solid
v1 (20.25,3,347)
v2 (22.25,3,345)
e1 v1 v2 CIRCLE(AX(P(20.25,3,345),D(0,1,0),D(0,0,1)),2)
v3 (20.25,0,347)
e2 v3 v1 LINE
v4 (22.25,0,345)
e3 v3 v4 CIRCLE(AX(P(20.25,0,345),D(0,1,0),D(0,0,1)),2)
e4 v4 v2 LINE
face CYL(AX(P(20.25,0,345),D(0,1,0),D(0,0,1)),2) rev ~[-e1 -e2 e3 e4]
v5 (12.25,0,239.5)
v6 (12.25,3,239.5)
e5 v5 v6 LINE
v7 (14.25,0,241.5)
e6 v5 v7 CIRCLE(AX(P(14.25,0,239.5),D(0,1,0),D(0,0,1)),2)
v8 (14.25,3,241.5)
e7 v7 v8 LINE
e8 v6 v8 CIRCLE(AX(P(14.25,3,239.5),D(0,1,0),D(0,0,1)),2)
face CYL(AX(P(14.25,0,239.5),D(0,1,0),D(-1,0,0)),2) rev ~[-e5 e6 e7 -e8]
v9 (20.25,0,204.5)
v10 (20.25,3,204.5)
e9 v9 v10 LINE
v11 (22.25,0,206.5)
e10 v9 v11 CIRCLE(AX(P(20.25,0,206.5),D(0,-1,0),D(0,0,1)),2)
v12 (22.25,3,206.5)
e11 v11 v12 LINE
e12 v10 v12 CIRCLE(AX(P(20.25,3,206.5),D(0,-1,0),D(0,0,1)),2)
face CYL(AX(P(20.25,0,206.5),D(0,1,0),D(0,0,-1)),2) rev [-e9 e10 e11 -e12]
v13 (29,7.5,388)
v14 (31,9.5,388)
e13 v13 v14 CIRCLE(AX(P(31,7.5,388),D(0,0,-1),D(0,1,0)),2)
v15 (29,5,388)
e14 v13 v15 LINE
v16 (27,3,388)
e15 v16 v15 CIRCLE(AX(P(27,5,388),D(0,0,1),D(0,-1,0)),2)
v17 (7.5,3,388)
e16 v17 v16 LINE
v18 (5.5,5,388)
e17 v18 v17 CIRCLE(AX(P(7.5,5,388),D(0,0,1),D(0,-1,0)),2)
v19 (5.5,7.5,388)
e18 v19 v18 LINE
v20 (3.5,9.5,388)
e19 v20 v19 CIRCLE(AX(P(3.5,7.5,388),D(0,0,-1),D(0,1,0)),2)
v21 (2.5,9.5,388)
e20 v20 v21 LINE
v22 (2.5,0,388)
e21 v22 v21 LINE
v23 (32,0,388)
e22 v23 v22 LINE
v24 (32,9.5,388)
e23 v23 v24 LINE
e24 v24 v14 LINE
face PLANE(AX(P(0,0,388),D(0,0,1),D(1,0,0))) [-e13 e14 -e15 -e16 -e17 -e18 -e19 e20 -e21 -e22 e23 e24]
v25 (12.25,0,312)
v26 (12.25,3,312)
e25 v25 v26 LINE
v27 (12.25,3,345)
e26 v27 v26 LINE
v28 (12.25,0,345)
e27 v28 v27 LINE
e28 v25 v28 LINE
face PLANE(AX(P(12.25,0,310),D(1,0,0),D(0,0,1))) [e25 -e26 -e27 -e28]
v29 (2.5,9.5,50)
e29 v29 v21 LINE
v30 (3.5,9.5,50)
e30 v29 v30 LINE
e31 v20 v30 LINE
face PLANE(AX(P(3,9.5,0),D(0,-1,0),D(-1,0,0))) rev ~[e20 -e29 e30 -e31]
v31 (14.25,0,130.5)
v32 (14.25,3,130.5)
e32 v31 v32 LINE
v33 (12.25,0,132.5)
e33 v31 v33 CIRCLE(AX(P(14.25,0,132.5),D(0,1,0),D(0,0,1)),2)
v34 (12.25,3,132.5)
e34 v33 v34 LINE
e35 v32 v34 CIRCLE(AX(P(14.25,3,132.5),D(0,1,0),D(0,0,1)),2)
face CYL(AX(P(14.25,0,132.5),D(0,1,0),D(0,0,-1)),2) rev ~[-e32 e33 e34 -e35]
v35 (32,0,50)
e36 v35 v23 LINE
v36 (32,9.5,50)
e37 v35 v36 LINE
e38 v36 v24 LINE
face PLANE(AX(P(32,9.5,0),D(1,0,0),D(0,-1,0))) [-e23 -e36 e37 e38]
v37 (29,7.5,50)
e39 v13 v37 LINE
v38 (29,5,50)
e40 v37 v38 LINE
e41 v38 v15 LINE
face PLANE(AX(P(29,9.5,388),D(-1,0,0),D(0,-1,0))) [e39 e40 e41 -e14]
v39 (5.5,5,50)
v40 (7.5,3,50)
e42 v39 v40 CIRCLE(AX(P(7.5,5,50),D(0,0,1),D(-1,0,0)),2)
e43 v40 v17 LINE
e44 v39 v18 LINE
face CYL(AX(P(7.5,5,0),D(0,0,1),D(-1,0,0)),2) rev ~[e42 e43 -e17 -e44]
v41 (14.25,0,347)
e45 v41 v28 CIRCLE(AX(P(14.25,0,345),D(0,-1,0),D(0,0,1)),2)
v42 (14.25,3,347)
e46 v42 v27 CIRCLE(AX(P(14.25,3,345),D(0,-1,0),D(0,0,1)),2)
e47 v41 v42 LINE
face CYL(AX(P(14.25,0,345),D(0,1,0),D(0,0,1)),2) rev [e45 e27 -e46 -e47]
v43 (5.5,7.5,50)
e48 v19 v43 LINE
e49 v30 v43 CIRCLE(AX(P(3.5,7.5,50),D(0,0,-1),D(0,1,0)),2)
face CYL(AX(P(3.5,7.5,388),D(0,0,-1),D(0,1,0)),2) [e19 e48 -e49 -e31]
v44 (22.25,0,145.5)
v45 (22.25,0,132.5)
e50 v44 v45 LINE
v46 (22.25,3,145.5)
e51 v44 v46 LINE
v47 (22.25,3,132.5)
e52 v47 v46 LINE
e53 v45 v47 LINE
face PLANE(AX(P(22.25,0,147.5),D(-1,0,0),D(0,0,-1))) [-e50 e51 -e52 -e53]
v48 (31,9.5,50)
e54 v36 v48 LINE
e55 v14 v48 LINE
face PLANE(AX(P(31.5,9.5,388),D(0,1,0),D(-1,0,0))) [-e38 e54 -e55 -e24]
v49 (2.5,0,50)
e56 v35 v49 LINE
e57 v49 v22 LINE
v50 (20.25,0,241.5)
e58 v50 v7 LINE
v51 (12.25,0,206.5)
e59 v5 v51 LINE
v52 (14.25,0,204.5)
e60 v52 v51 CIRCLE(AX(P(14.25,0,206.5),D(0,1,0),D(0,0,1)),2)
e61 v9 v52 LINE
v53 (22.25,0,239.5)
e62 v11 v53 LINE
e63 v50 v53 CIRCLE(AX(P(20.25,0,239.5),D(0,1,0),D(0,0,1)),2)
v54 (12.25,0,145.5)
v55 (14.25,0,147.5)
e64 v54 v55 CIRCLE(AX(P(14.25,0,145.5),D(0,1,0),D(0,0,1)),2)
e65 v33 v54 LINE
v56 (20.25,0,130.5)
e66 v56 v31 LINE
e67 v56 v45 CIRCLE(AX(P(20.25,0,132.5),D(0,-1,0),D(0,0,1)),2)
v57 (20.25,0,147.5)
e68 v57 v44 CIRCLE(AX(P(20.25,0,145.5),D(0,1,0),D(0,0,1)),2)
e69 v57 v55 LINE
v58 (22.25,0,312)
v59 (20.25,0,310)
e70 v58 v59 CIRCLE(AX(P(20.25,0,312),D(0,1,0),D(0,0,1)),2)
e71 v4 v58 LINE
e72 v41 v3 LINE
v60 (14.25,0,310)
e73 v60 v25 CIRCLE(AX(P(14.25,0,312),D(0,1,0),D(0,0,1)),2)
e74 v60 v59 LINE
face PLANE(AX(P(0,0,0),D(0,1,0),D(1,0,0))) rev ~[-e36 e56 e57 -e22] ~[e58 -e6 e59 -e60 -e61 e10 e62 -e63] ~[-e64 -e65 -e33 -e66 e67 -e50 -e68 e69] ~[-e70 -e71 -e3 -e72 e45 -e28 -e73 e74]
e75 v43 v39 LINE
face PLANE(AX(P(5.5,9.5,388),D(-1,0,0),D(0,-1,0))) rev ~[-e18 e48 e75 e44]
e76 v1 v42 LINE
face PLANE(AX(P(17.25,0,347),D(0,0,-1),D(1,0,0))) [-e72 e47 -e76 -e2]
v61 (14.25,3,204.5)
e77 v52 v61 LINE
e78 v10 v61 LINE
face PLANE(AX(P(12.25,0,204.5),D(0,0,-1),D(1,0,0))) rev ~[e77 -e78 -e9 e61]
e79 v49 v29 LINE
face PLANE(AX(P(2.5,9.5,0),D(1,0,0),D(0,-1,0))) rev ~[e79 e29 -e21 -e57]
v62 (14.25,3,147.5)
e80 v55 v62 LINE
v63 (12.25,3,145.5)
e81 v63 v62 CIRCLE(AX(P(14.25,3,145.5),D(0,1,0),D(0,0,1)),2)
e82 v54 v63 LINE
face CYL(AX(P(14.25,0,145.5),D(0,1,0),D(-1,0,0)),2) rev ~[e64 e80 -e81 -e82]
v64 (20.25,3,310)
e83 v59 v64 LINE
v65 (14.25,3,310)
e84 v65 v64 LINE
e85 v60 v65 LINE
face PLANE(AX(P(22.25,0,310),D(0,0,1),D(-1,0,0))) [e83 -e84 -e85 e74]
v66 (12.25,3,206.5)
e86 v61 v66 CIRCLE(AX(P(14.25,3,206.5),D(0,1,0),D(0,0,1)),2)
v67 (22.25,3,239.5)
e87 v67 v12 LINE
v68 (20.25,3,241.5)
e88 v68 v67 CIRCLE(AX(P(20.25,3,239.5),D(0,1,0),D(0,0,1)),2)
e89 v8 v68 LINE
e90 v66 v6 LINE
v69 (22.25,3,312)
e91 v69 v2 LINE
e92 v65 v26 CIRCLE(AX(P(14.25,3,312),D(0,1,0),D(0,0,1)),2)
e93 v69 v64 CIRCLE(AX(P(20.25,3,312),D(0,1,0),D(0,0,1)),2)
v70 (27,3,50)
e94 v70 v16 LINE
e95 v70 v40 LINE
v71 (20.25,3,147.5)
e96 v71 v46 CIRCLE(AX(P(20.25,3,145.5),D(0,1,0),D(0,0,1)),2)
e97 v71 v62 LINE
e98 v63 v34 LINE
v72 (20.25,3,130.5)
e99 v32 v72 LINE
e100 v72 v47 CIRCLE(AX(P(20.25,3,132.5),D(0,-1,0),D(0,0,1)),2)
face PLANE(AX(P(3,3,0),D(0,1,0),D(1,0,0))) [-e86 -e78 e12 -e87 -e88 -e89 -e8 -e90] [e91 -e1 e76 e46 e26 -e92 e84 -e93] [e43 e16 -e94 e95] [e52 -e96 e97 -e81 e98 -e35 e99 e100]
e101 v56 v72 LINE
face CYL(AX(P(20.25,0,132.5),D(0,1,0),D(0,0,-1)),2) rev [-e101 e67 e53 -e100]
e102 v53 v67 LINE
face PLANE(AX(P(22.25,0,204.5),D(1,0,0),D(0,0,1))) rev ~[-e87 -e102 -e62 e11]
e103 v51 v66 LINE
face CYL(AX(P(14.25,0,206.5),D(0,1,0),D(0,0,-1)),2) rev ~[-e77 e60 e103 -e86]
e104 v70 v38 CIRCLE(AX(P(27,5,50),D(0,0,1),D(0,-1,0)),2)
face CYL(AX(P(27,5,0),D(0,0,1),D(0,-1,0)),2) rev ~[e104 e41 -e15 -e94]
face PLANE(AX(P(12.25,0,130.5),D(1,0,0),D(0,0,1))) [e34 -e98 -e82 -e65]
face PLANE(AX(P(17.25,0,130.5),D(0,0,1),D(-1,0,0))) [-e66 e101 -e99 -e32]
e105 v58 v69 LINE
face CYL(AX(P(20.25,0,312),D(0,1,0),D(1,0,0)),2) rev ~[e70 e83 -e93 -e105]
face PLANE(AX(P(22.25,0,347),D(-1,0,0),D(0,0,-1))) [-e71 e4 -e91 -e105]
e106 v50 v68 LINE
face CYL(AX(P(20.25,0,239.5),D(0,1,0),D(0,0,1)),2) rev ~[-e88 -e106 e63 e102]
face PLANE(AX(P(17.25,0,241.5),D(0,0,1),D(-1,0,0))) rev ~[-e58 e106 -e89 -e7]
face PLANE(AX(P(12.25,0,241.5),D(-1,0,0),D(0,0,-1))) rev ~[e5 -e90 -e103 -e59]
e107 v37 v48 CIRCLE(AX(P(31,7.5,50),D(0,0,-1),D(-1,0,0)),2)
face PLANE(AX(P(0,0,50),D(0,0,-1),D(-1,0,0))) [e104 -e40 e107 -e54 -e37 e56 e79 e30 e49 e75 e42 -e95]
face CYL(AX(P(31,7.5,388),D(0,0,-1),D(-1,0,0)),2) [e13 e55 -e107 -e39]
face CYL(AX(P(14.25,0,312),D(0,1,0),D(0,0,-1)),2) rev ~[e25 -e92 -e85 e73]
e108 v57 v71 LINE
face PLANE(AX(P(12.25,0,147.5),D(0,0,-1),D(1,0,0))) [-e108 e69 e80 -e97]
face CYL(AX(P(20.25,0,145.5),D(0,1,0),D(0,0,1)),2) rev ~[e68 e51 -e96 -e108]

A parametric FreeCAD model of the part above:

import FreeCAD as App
import Part
import Sketcher
Q = App.Units.Quantity


def edges_at(feature, points):
    """Names of the edges that pass closest to the given points."""
    edges = feature.Shape.Edges
    near = lambda p: min(range(len(edges)), key=lambda i: edges[i].distToShape(Part.Vertex(*p))[0])
    return sorted({f"Edge{near(p) + 1}" for p in points})

doc = App.newDocument("Part")
body = doc.addObject("PartDesign::Body", "Body")

sketch1 = body.newObject("Sketcher::SketchObject", "Sketch")
sketch1.AttachmentSupport = (doc.getObject("XY_Plane"), [""])
sketch1.MapMode = "FlatFace"
sketch1.addGeometry([
    Part.LineSegment(App.Vector(0, 9.5, 0), App.Vector(0, 0, 0)),
    Part.LineSegment(App.Vector(0, 0, 0), App.Vector(34.5, 0, 0)),
    Part.LineSegment(App.Vector(34.5, 0, 0), App.Vector(34.5, 9.5, 0)),
    Part.LineSegment(App.Vector(34.5, 9.5, 0), App.Vector(31.5, 9.5, 0)),
    Part.LineSegment(App.Vector(31.5, 9.5, 0), App.Vector(31.5, 3, 0)),
    Part.LineSegment(App.Vector(31.5, 3, 0), App.Vector(3, 3, 0)),
    Part.LineSegment(App.Vector(3, 3, 0), App.Vector(3, 9.5, 0)),
    Part.LineSegment(App.Vector(3, 9.5, 0), App.Vector(0, 9.5, 0)),
], False)
sketch1.addConstraint([
    Sketcher.Constraint("Coincident", 0, 2, 1, 1),
    Sketcher.Constraint("Coincident", 1, 2, 2, 1),
    Sketcher.Constraint("Coincident", 2, 2, 3, 1),
    Sketcher.Constraint("Coincident", 3, 2, 4, 1),
    Sketcher.Constraint("Coincident", 4, 2, 5, 1),
    Sketcher.Constraint("Coincident", 5, 2, 6, 1),
    Sketcher.Constraint("Coincident", 6, 2, 7, 1),
    Sketcher.Constraint("Coincident", 7, 2, 0, 1),
    Sketcher.Constraint("Vertical", 0),
    Sketcher.Constraint("Horizontal", 1),
    Sketcher.Constraint("Vertical", 2),
    Sketcher.Constraint("Horizontal", 3),
    Sketcher.Constraint("Vertical", 4),
    Sketcher.Constraint("Horizontal", 5),
    Sketcher.Constraint("Vertical", 6),
    Sketcher.Constraint("Horizontal", 7),
    Sketcher.Constraint("Coincident", 0, 2, -1, 1),
    Sketcher.Constraint("Horizontal", 3, 2, 6, 2),
    Sketcher.Constraint("Equal", 3, 7),
    Sketcher.Constraint("DistanceX", 3, 2, 3, 1, Q("3 mm")),
    Sketcher.Constraint("DistanceX", 1, 1, 1, 2, Q("34.5 mm")),
    Sketcher.Constraint("DistanceY", 0, 2, 0, 1, Q("9.5 mm")),
    Sketcher.Constraint("DistanceY", -1, 1, 4, 2, Q("3 mm")),
])
pad1 = body.newObject("PartDesign::Pad", "Pad")
pad1.Profile = sketch1
pad1.Length = 388

sketch2 = body.newObject("Sketcher::SketchObject", "Sketch001")
sketch2.AttachmentSupport = (doc.getObject("XZ_Plane"), [""])
sketch2.MapMode = "FlatFace"
sketch2.addGeometry([
    Part.LineSegment(App.Vector(12, 130, 0), App.Vector(22, 130, 0)),
    Part.LineSegment(App.Vector(22, 130, 0), App.Vector(22, 148, 0)),
    Part.LineSegment(App.Vector(22, 148, 0), App.Vector(12, 148, 0)),
    Part.LineSegment(App.Vector(12, 148, 0), App.Vector(12, 130, 0)),
    Part.LineSegment(App.Vector(22, 347, 0), App.Vector(12, 347, 0)),
    Part.LineSegment(App.Vector(12, 347, 0), App.Vector(12, 310, 0)),
    Part.LineSegment(App.Vector(12, 310, 0), App.Vector(22, 310, 0)),
    Part.LineSegment(App.Vector(22, 310, 0), App.Vector(22, 347, 0)),
    Part.LineSegment(App.Vector(12, 204, 0), App.Vector(22, 204, 0)),
    Part.LineSegment(App.Vector(22, 204, 0), App.Vector(22, 242, 0)),
    Part.LineSegment(App.Vector(22, 242, 0), App.Vector(12, 242, 0)),
    Part.LineSegment(App.Vector(12, 242, 0), App.Vector(12, 204, 0)),
], False)
sketch2.addConstraint([
    Sketcher.Constraint("Coincident", 0, 2, 1, 1),
    Sketcher.Constraint("Coincident", 1, 2, 2, 1),
    Sketcher.Constraint("Coincident", 2, 2, 3, 1),
    Sketcher.Constraint("Coincident", 3, 2, 0, 1),
    Sketcher.Constraint("Coincident", 4, 2, 5, 1),
    Sketcher.Constraint("Coincident", 5, 2, 6, 1),
    Sketcher.Constraint("Coincident", 6, 2, 7, 1),
    Sketcher.Constraint("Coincident", 7, 2, 4, 1),
    Sketcher.Constraint("Coincident", 8, 2, 9, 1),
    Sketcher.Constraint("Coincident", 9, 2, 10, 1),
    Sketcher.Constraint("Coincident", 10, 2, 11, 1),
    Sketcher.Constraint("Coincident", 11, 2, 8, 1),
    Sketcher.Constraint("Horizontal", 0),
    Sketcher.Constraint("Vertical", 1),
    Sketcher.Constraint("Horizontal", 2),
    Sketcher.Constraint("Vertical", 3),
    Sketcher.Constraint("Horizontal", 4),
    Sketcher.Constraint("Vertical", 5),
    Sketcher.Constraint("Horizontal", 6),
    Sketcher.Constraint("Vertical", 7),
    Sketcher.Constraint("Horizontal", 8),
    Sketcher.Constraint("Vertical", 9),
    Sketcher.Constraint("Horizontal", 10),
    Sketcher.Constraint("Vertical", 11),
    Sketcher.Constraint("Vertical", 3, 2, 4, 2),
    Sketcher.Constraint("Vertical", 1, 2, 6, 2),
    Sketcher.Constraint("Vertical", 7, 2, 8, 2),
    Sketcher.Constraint("Vertical", 5, 2, 10, 2),
    Sketcher.Constraint("Equal", 7, 9),
    Sketcher.Constraint("DistanceX", 0, 1, 0, 2, Q("10 mm")),
    Sketcher.Constraint("DistanceY", 1, 1, 1, 2, Q("17 mm")),
    Sketcher.Constraint("DistanceY", 5, 2, 5, 1, Q("37 mm")),
    Sketcher.Constraint("DistanceY", 1, 2, 8, 2, Q("57 mm")),
    Sketcher.Constraint("DistanceY", 9, 2, 6, 2, Q("68.5 mm")),
    Sketcher.Constraint("DistanceY", -1, 1, 4, 2, Q("347 mm")),
    Sketcher.Constraint("DistanceX", -1, 1, 0, 2, Q("22.25 mm")),
])
pocket1 = body.newObject("PartDesign::Pocket", "Pocket")
pocket1.Profile = sketch2
pocket1.Length = 295
doc.recompute()

fillet = body.newObject("PartDesign::Fillet", "Fillet")
fillet.Base = (pocket1, edges_at(pocket1, [
    (12.25, 1.5, 241.5),
    (12.25, 1.5, 204.5),
    (22.25, 1.5, 204.5),
    (22.25, 1.5, 241.5),
    (22.25, 1.5, 147.5),
    (22.25, 1.5, 130.5),
    (12.25, 1.5, 147.5),
    (12.25, 1.5, 130.5),
    (12.25, 1.5, 310),
    (12.25, 1.5, 347),
    (22.25, 1.5, 347),
    (22.25, 1.5, 310),
]))
fillet.Radius = 2

sketch3 = body.newObject("Sketcher::SketchObject", "Sketch002")
sketch3.AttachmentSupport = (doc.getObject("XY_Plane"), [""])
sketch3.MapMode = "FlatFace"
sketch3.AttachmentOffset = App.Placement(App.Vector(0, 0, 388), App.Rotation())
sketch3.addGeometry([
    Part.LineSegment(App.Vector(3, 9.5, 0), App.Vector(3, 0, 0)),
    Part.LineSegment(App.Vector(3, 0, 0), App.Vector(5.5, 0, 0)),
    Part.LineSegment(App.Vector(5.5, 0, 0), App.Vector(5.5, 9.5, 0)),
    Part.LineSegment(App.Vector(5.5, 9.5, 0), App.Vector(3, 9.5, 0)),
    Part.LineSegment(App.Vector(31.5, 0, 0), App.Vector(31.5, 9.5, 0)),
    Part.LineSegment(App.Vector(31.5, 9.5, 0), App.Vector(29, 9.5, 0)),
    Part.LineSegment(App.Vector(29, 9.5, 0), App.Vector(29, 0, 0)),
    Part.LineSegment(App.Vector(29, 0, 0), App.Vector(31.5, 0, 0)),
], False)
sketch3.addConstraint([
    Sketcher.Constraint("Coincident", 0, 2, 1, 1),
    Sketcher.Constraint("Coincident", 1, 2, 2, 1),
    Sketcher.Constraint("Coincident", 2, 2, 3, 1),
    Sketcher.Constraint("Coincident", 3, 2, 0, 1),
    Sketcher.Constraint("Coincident", 4, 2, 5, 1),
    Sketcher.Constraint("Coincident", 5, 2, 6, 1),
    Sketcher.Constraint("Coincident", 6, 2, 7, 1),
    Sketcher.Constraint("Coincident", 7, 2, 4, 1),
    Sketcher.Constraint("Vertical", 0),
    Sketcher.Constraint("Horizontal", 1),
    Sketcher.Constraint("Vertical", 2),
    Sketcher.Constraint("Horizontal", 3),
    Sketcher.Constraint("Vertical", 4),
    Sketcher.Constraint("Horizontal", 5),
    Sketcher.Constraint("Vertical", 6),
    Sketcher.Constraint("Horizontal", 7),
    Sketcher.Constraint("PointOnObject", 0, 2, -1),
    Sketcher.Constraint("PointOnObject", 6, 2, -1),
    Sketcher.Constraint("Horizontal", 3, 2, 4, 2),
    Sketcher.Constraint("Equal", 3, 5),
    Sketcher.Constraint("DistanceX", 1, 1, 1, 2, Q("2.5 mm")),
    Sketcher.Constraint("DistanceY", 0, 2, 0, 1, Q("9.5 mm")),
    Sketcher.Constraint("DistanceX", -1, 1, 0, 2, Q("3 mm")),
    Sketcher.Constraint("DistanceX", -1, 1, 5, 2, Q("29 mm")),
])
pad2 = body.newObject("PartDesign::Pad", "Pad001")
pad2.Profile = sketch3
pad2.Length = 388
pad2.Reversed = True

sketch4 = body.newObject("Sketcher::SketchObject", "Sketch003")
sketch4.AttachmentSupport = (doc.getObject("XY_Plane"), [""])
sketch4.MapMode = "FlatFace"
sketch4.addGeometry([
    Part.LineSegment(App.Vector(2.5, 9.5, 0), App.Vector(2.5, 0, 0)),
    Part.LineSegment(App.Vector(2.5, 0, 0), App.Vector(0, 0, 0)),
    Part.LineSegment(App.Vector(0, 0, 0), App.Vector(0, 9.5, 0)),
    Part.LineSegment(App.Vector(0, 9.5, 0), App.Vector(2.5, 9.5, 0)),
    Part.LineSegment(App.Vector(32, 9.5, 0), App.Vector(34.5, 9.5, 0)),
    Part.LineSegment(App.Vector(34.5, 9.5, 0), App.Vector(34.5, 0, 0)),
    Part.LineSegment(App.Vector(34.5, 0, 0), App.Vector(32, 0, 0)),
    Part.LineSegment(App.Vector(32, 0, 0), App.Vector(32, 9.5, 0)),
], False)
sketch4.addConstraint([
    Sketcher.Constraint("Coincident", 0, 2, 1, 1),
    Sketcher.Constraint("Coincident", 1, 2, 2, 1),
    Sketcher.Constraint("Coincident", 2, 2, 3, 1),
    Sketcher.Constraint("Coincident", 3, 2, 0, 1),
    Sketcher.Constraint("Coincident", 4, 2, 5, 1),
    Sketcher.Constraint("Coincident", 5, 2, 6, 1),
    Sketcher.Constraint("Coincident", 6, 2, 7, 1),
    Sketcher.Constraint("Coincident", 7, 2, 4, 1),
    Sketcher.Constraint("Vertical", 0),
    Sketcher.Constraint("Horizontal", 1),
    Sketcher.Constraint("Vertical", 2),
    Sketcher.Constraint("Horizontal", 3),
    Sketcher.Constraint("Horizontal", 4),
    Sketcher.Constraint("Vertical", 5),
    Sketcher.Constraint("Horizontal", 6),
    Sketcher.Constraint("Vertical", 7),
    Sketcher.Constraint("Coincident", 1, 2, -1, 1),
    Sketcher.Constraint("PointOnObject", 5, 2, -1),
    Sketcher.Constraint("Horizontal", 3, 2, 4, 2),
    Sketcher.Constraint("Equal", 3, 4),
    Sketcher.Constraint("DistanceX", 1, 2, 1, 1, Q("2.5 mm")),
    Sketcher.Constraint("DistanceY", 0, 2, 0, 1, Q("9.5 mm")),
    Sketcher.Constraint("DistanceX", -1, 1, 6, 2, Q("32 mm")),
])
pocket2 = body.newObject("PartDesign::Pocket", "Pocket001")
pocket2.Profile = sketch4
pocket2.Type = "ThroughAll"
pocket2.Reversed = True
doc.recompute()

fillet2 = body.newObject("PartDesign::Fillet", "Fillet001")
fillet2.Base = (pocket2, edges_at(pocket2, [
    (5.5, 3, 194),
    (29, 3, 194),
    (29, 9.5, 194),
    (5.5, 9.5, 194),
]))
fillet2.Radius = 2

sketch5 = body.newObject("Sketcher::SketchObject", "Sketch004")
sketch5.AttachmentSupport = (doc.getObject("XY_Plane"), [""])
sketch5.MapMode = "FlatFace"
sketch5.addGeometry([
    Part.LineSegment(App.Vector(-52, -123, 0), App.Vector(-52, 100, 0)),
    Part.LineSegment(App.Vector(-52, 100, 0), App.Vector(112, 100, 0)),
    Part.LineSegment(App.Vector(112, 100, 0), App.Vector(112, -123, 0)),
    Part.LineSegment(App.Vector(112, -123, 0), App.Vector(-52, -123, 0)),
], False)
sketch5.addConstraint([
    Sketcher.Constraint("Coincident", 0, 2, 1, 1),
    Sketcher.Constraint("Coincident", 1, 2, 2, 1),
    Sketcher.Constraint("Coincident", 2, 2, 3, 1),
    Sketcher.Constraint("Coincident", 3, 2, 0, 1),
    Sketcher.Constraint("Vertical", 0),
    Sketcher.Constraint("Horizontal", 1),
    Sketcher.Constraint("Vertical", 2),
    Sketcher.Constraint("Horizontal", 3),
    Sketcher.Constraint("DistanceX", 1, 1, 1, 2, Q("164 mm")),
    Sketcher.Constraint("DistanceY", 0, 1, 0, 2, Q("223 mm")),
    Sketcher.Constraint("DistanceX", 0, 2, -1, 1, Q("52 mm")),
    Sketcher.Constraint("DistanceY", -1, 1, 0, 2, Q("100 mm")),
])
pocket3 = body.newObject("PartDesign::Pocket", "Pocket002")
pocket3.Profile = sketch5
pocket3.Length = 50
pocket3.Reversed = True

doc.recompute()
